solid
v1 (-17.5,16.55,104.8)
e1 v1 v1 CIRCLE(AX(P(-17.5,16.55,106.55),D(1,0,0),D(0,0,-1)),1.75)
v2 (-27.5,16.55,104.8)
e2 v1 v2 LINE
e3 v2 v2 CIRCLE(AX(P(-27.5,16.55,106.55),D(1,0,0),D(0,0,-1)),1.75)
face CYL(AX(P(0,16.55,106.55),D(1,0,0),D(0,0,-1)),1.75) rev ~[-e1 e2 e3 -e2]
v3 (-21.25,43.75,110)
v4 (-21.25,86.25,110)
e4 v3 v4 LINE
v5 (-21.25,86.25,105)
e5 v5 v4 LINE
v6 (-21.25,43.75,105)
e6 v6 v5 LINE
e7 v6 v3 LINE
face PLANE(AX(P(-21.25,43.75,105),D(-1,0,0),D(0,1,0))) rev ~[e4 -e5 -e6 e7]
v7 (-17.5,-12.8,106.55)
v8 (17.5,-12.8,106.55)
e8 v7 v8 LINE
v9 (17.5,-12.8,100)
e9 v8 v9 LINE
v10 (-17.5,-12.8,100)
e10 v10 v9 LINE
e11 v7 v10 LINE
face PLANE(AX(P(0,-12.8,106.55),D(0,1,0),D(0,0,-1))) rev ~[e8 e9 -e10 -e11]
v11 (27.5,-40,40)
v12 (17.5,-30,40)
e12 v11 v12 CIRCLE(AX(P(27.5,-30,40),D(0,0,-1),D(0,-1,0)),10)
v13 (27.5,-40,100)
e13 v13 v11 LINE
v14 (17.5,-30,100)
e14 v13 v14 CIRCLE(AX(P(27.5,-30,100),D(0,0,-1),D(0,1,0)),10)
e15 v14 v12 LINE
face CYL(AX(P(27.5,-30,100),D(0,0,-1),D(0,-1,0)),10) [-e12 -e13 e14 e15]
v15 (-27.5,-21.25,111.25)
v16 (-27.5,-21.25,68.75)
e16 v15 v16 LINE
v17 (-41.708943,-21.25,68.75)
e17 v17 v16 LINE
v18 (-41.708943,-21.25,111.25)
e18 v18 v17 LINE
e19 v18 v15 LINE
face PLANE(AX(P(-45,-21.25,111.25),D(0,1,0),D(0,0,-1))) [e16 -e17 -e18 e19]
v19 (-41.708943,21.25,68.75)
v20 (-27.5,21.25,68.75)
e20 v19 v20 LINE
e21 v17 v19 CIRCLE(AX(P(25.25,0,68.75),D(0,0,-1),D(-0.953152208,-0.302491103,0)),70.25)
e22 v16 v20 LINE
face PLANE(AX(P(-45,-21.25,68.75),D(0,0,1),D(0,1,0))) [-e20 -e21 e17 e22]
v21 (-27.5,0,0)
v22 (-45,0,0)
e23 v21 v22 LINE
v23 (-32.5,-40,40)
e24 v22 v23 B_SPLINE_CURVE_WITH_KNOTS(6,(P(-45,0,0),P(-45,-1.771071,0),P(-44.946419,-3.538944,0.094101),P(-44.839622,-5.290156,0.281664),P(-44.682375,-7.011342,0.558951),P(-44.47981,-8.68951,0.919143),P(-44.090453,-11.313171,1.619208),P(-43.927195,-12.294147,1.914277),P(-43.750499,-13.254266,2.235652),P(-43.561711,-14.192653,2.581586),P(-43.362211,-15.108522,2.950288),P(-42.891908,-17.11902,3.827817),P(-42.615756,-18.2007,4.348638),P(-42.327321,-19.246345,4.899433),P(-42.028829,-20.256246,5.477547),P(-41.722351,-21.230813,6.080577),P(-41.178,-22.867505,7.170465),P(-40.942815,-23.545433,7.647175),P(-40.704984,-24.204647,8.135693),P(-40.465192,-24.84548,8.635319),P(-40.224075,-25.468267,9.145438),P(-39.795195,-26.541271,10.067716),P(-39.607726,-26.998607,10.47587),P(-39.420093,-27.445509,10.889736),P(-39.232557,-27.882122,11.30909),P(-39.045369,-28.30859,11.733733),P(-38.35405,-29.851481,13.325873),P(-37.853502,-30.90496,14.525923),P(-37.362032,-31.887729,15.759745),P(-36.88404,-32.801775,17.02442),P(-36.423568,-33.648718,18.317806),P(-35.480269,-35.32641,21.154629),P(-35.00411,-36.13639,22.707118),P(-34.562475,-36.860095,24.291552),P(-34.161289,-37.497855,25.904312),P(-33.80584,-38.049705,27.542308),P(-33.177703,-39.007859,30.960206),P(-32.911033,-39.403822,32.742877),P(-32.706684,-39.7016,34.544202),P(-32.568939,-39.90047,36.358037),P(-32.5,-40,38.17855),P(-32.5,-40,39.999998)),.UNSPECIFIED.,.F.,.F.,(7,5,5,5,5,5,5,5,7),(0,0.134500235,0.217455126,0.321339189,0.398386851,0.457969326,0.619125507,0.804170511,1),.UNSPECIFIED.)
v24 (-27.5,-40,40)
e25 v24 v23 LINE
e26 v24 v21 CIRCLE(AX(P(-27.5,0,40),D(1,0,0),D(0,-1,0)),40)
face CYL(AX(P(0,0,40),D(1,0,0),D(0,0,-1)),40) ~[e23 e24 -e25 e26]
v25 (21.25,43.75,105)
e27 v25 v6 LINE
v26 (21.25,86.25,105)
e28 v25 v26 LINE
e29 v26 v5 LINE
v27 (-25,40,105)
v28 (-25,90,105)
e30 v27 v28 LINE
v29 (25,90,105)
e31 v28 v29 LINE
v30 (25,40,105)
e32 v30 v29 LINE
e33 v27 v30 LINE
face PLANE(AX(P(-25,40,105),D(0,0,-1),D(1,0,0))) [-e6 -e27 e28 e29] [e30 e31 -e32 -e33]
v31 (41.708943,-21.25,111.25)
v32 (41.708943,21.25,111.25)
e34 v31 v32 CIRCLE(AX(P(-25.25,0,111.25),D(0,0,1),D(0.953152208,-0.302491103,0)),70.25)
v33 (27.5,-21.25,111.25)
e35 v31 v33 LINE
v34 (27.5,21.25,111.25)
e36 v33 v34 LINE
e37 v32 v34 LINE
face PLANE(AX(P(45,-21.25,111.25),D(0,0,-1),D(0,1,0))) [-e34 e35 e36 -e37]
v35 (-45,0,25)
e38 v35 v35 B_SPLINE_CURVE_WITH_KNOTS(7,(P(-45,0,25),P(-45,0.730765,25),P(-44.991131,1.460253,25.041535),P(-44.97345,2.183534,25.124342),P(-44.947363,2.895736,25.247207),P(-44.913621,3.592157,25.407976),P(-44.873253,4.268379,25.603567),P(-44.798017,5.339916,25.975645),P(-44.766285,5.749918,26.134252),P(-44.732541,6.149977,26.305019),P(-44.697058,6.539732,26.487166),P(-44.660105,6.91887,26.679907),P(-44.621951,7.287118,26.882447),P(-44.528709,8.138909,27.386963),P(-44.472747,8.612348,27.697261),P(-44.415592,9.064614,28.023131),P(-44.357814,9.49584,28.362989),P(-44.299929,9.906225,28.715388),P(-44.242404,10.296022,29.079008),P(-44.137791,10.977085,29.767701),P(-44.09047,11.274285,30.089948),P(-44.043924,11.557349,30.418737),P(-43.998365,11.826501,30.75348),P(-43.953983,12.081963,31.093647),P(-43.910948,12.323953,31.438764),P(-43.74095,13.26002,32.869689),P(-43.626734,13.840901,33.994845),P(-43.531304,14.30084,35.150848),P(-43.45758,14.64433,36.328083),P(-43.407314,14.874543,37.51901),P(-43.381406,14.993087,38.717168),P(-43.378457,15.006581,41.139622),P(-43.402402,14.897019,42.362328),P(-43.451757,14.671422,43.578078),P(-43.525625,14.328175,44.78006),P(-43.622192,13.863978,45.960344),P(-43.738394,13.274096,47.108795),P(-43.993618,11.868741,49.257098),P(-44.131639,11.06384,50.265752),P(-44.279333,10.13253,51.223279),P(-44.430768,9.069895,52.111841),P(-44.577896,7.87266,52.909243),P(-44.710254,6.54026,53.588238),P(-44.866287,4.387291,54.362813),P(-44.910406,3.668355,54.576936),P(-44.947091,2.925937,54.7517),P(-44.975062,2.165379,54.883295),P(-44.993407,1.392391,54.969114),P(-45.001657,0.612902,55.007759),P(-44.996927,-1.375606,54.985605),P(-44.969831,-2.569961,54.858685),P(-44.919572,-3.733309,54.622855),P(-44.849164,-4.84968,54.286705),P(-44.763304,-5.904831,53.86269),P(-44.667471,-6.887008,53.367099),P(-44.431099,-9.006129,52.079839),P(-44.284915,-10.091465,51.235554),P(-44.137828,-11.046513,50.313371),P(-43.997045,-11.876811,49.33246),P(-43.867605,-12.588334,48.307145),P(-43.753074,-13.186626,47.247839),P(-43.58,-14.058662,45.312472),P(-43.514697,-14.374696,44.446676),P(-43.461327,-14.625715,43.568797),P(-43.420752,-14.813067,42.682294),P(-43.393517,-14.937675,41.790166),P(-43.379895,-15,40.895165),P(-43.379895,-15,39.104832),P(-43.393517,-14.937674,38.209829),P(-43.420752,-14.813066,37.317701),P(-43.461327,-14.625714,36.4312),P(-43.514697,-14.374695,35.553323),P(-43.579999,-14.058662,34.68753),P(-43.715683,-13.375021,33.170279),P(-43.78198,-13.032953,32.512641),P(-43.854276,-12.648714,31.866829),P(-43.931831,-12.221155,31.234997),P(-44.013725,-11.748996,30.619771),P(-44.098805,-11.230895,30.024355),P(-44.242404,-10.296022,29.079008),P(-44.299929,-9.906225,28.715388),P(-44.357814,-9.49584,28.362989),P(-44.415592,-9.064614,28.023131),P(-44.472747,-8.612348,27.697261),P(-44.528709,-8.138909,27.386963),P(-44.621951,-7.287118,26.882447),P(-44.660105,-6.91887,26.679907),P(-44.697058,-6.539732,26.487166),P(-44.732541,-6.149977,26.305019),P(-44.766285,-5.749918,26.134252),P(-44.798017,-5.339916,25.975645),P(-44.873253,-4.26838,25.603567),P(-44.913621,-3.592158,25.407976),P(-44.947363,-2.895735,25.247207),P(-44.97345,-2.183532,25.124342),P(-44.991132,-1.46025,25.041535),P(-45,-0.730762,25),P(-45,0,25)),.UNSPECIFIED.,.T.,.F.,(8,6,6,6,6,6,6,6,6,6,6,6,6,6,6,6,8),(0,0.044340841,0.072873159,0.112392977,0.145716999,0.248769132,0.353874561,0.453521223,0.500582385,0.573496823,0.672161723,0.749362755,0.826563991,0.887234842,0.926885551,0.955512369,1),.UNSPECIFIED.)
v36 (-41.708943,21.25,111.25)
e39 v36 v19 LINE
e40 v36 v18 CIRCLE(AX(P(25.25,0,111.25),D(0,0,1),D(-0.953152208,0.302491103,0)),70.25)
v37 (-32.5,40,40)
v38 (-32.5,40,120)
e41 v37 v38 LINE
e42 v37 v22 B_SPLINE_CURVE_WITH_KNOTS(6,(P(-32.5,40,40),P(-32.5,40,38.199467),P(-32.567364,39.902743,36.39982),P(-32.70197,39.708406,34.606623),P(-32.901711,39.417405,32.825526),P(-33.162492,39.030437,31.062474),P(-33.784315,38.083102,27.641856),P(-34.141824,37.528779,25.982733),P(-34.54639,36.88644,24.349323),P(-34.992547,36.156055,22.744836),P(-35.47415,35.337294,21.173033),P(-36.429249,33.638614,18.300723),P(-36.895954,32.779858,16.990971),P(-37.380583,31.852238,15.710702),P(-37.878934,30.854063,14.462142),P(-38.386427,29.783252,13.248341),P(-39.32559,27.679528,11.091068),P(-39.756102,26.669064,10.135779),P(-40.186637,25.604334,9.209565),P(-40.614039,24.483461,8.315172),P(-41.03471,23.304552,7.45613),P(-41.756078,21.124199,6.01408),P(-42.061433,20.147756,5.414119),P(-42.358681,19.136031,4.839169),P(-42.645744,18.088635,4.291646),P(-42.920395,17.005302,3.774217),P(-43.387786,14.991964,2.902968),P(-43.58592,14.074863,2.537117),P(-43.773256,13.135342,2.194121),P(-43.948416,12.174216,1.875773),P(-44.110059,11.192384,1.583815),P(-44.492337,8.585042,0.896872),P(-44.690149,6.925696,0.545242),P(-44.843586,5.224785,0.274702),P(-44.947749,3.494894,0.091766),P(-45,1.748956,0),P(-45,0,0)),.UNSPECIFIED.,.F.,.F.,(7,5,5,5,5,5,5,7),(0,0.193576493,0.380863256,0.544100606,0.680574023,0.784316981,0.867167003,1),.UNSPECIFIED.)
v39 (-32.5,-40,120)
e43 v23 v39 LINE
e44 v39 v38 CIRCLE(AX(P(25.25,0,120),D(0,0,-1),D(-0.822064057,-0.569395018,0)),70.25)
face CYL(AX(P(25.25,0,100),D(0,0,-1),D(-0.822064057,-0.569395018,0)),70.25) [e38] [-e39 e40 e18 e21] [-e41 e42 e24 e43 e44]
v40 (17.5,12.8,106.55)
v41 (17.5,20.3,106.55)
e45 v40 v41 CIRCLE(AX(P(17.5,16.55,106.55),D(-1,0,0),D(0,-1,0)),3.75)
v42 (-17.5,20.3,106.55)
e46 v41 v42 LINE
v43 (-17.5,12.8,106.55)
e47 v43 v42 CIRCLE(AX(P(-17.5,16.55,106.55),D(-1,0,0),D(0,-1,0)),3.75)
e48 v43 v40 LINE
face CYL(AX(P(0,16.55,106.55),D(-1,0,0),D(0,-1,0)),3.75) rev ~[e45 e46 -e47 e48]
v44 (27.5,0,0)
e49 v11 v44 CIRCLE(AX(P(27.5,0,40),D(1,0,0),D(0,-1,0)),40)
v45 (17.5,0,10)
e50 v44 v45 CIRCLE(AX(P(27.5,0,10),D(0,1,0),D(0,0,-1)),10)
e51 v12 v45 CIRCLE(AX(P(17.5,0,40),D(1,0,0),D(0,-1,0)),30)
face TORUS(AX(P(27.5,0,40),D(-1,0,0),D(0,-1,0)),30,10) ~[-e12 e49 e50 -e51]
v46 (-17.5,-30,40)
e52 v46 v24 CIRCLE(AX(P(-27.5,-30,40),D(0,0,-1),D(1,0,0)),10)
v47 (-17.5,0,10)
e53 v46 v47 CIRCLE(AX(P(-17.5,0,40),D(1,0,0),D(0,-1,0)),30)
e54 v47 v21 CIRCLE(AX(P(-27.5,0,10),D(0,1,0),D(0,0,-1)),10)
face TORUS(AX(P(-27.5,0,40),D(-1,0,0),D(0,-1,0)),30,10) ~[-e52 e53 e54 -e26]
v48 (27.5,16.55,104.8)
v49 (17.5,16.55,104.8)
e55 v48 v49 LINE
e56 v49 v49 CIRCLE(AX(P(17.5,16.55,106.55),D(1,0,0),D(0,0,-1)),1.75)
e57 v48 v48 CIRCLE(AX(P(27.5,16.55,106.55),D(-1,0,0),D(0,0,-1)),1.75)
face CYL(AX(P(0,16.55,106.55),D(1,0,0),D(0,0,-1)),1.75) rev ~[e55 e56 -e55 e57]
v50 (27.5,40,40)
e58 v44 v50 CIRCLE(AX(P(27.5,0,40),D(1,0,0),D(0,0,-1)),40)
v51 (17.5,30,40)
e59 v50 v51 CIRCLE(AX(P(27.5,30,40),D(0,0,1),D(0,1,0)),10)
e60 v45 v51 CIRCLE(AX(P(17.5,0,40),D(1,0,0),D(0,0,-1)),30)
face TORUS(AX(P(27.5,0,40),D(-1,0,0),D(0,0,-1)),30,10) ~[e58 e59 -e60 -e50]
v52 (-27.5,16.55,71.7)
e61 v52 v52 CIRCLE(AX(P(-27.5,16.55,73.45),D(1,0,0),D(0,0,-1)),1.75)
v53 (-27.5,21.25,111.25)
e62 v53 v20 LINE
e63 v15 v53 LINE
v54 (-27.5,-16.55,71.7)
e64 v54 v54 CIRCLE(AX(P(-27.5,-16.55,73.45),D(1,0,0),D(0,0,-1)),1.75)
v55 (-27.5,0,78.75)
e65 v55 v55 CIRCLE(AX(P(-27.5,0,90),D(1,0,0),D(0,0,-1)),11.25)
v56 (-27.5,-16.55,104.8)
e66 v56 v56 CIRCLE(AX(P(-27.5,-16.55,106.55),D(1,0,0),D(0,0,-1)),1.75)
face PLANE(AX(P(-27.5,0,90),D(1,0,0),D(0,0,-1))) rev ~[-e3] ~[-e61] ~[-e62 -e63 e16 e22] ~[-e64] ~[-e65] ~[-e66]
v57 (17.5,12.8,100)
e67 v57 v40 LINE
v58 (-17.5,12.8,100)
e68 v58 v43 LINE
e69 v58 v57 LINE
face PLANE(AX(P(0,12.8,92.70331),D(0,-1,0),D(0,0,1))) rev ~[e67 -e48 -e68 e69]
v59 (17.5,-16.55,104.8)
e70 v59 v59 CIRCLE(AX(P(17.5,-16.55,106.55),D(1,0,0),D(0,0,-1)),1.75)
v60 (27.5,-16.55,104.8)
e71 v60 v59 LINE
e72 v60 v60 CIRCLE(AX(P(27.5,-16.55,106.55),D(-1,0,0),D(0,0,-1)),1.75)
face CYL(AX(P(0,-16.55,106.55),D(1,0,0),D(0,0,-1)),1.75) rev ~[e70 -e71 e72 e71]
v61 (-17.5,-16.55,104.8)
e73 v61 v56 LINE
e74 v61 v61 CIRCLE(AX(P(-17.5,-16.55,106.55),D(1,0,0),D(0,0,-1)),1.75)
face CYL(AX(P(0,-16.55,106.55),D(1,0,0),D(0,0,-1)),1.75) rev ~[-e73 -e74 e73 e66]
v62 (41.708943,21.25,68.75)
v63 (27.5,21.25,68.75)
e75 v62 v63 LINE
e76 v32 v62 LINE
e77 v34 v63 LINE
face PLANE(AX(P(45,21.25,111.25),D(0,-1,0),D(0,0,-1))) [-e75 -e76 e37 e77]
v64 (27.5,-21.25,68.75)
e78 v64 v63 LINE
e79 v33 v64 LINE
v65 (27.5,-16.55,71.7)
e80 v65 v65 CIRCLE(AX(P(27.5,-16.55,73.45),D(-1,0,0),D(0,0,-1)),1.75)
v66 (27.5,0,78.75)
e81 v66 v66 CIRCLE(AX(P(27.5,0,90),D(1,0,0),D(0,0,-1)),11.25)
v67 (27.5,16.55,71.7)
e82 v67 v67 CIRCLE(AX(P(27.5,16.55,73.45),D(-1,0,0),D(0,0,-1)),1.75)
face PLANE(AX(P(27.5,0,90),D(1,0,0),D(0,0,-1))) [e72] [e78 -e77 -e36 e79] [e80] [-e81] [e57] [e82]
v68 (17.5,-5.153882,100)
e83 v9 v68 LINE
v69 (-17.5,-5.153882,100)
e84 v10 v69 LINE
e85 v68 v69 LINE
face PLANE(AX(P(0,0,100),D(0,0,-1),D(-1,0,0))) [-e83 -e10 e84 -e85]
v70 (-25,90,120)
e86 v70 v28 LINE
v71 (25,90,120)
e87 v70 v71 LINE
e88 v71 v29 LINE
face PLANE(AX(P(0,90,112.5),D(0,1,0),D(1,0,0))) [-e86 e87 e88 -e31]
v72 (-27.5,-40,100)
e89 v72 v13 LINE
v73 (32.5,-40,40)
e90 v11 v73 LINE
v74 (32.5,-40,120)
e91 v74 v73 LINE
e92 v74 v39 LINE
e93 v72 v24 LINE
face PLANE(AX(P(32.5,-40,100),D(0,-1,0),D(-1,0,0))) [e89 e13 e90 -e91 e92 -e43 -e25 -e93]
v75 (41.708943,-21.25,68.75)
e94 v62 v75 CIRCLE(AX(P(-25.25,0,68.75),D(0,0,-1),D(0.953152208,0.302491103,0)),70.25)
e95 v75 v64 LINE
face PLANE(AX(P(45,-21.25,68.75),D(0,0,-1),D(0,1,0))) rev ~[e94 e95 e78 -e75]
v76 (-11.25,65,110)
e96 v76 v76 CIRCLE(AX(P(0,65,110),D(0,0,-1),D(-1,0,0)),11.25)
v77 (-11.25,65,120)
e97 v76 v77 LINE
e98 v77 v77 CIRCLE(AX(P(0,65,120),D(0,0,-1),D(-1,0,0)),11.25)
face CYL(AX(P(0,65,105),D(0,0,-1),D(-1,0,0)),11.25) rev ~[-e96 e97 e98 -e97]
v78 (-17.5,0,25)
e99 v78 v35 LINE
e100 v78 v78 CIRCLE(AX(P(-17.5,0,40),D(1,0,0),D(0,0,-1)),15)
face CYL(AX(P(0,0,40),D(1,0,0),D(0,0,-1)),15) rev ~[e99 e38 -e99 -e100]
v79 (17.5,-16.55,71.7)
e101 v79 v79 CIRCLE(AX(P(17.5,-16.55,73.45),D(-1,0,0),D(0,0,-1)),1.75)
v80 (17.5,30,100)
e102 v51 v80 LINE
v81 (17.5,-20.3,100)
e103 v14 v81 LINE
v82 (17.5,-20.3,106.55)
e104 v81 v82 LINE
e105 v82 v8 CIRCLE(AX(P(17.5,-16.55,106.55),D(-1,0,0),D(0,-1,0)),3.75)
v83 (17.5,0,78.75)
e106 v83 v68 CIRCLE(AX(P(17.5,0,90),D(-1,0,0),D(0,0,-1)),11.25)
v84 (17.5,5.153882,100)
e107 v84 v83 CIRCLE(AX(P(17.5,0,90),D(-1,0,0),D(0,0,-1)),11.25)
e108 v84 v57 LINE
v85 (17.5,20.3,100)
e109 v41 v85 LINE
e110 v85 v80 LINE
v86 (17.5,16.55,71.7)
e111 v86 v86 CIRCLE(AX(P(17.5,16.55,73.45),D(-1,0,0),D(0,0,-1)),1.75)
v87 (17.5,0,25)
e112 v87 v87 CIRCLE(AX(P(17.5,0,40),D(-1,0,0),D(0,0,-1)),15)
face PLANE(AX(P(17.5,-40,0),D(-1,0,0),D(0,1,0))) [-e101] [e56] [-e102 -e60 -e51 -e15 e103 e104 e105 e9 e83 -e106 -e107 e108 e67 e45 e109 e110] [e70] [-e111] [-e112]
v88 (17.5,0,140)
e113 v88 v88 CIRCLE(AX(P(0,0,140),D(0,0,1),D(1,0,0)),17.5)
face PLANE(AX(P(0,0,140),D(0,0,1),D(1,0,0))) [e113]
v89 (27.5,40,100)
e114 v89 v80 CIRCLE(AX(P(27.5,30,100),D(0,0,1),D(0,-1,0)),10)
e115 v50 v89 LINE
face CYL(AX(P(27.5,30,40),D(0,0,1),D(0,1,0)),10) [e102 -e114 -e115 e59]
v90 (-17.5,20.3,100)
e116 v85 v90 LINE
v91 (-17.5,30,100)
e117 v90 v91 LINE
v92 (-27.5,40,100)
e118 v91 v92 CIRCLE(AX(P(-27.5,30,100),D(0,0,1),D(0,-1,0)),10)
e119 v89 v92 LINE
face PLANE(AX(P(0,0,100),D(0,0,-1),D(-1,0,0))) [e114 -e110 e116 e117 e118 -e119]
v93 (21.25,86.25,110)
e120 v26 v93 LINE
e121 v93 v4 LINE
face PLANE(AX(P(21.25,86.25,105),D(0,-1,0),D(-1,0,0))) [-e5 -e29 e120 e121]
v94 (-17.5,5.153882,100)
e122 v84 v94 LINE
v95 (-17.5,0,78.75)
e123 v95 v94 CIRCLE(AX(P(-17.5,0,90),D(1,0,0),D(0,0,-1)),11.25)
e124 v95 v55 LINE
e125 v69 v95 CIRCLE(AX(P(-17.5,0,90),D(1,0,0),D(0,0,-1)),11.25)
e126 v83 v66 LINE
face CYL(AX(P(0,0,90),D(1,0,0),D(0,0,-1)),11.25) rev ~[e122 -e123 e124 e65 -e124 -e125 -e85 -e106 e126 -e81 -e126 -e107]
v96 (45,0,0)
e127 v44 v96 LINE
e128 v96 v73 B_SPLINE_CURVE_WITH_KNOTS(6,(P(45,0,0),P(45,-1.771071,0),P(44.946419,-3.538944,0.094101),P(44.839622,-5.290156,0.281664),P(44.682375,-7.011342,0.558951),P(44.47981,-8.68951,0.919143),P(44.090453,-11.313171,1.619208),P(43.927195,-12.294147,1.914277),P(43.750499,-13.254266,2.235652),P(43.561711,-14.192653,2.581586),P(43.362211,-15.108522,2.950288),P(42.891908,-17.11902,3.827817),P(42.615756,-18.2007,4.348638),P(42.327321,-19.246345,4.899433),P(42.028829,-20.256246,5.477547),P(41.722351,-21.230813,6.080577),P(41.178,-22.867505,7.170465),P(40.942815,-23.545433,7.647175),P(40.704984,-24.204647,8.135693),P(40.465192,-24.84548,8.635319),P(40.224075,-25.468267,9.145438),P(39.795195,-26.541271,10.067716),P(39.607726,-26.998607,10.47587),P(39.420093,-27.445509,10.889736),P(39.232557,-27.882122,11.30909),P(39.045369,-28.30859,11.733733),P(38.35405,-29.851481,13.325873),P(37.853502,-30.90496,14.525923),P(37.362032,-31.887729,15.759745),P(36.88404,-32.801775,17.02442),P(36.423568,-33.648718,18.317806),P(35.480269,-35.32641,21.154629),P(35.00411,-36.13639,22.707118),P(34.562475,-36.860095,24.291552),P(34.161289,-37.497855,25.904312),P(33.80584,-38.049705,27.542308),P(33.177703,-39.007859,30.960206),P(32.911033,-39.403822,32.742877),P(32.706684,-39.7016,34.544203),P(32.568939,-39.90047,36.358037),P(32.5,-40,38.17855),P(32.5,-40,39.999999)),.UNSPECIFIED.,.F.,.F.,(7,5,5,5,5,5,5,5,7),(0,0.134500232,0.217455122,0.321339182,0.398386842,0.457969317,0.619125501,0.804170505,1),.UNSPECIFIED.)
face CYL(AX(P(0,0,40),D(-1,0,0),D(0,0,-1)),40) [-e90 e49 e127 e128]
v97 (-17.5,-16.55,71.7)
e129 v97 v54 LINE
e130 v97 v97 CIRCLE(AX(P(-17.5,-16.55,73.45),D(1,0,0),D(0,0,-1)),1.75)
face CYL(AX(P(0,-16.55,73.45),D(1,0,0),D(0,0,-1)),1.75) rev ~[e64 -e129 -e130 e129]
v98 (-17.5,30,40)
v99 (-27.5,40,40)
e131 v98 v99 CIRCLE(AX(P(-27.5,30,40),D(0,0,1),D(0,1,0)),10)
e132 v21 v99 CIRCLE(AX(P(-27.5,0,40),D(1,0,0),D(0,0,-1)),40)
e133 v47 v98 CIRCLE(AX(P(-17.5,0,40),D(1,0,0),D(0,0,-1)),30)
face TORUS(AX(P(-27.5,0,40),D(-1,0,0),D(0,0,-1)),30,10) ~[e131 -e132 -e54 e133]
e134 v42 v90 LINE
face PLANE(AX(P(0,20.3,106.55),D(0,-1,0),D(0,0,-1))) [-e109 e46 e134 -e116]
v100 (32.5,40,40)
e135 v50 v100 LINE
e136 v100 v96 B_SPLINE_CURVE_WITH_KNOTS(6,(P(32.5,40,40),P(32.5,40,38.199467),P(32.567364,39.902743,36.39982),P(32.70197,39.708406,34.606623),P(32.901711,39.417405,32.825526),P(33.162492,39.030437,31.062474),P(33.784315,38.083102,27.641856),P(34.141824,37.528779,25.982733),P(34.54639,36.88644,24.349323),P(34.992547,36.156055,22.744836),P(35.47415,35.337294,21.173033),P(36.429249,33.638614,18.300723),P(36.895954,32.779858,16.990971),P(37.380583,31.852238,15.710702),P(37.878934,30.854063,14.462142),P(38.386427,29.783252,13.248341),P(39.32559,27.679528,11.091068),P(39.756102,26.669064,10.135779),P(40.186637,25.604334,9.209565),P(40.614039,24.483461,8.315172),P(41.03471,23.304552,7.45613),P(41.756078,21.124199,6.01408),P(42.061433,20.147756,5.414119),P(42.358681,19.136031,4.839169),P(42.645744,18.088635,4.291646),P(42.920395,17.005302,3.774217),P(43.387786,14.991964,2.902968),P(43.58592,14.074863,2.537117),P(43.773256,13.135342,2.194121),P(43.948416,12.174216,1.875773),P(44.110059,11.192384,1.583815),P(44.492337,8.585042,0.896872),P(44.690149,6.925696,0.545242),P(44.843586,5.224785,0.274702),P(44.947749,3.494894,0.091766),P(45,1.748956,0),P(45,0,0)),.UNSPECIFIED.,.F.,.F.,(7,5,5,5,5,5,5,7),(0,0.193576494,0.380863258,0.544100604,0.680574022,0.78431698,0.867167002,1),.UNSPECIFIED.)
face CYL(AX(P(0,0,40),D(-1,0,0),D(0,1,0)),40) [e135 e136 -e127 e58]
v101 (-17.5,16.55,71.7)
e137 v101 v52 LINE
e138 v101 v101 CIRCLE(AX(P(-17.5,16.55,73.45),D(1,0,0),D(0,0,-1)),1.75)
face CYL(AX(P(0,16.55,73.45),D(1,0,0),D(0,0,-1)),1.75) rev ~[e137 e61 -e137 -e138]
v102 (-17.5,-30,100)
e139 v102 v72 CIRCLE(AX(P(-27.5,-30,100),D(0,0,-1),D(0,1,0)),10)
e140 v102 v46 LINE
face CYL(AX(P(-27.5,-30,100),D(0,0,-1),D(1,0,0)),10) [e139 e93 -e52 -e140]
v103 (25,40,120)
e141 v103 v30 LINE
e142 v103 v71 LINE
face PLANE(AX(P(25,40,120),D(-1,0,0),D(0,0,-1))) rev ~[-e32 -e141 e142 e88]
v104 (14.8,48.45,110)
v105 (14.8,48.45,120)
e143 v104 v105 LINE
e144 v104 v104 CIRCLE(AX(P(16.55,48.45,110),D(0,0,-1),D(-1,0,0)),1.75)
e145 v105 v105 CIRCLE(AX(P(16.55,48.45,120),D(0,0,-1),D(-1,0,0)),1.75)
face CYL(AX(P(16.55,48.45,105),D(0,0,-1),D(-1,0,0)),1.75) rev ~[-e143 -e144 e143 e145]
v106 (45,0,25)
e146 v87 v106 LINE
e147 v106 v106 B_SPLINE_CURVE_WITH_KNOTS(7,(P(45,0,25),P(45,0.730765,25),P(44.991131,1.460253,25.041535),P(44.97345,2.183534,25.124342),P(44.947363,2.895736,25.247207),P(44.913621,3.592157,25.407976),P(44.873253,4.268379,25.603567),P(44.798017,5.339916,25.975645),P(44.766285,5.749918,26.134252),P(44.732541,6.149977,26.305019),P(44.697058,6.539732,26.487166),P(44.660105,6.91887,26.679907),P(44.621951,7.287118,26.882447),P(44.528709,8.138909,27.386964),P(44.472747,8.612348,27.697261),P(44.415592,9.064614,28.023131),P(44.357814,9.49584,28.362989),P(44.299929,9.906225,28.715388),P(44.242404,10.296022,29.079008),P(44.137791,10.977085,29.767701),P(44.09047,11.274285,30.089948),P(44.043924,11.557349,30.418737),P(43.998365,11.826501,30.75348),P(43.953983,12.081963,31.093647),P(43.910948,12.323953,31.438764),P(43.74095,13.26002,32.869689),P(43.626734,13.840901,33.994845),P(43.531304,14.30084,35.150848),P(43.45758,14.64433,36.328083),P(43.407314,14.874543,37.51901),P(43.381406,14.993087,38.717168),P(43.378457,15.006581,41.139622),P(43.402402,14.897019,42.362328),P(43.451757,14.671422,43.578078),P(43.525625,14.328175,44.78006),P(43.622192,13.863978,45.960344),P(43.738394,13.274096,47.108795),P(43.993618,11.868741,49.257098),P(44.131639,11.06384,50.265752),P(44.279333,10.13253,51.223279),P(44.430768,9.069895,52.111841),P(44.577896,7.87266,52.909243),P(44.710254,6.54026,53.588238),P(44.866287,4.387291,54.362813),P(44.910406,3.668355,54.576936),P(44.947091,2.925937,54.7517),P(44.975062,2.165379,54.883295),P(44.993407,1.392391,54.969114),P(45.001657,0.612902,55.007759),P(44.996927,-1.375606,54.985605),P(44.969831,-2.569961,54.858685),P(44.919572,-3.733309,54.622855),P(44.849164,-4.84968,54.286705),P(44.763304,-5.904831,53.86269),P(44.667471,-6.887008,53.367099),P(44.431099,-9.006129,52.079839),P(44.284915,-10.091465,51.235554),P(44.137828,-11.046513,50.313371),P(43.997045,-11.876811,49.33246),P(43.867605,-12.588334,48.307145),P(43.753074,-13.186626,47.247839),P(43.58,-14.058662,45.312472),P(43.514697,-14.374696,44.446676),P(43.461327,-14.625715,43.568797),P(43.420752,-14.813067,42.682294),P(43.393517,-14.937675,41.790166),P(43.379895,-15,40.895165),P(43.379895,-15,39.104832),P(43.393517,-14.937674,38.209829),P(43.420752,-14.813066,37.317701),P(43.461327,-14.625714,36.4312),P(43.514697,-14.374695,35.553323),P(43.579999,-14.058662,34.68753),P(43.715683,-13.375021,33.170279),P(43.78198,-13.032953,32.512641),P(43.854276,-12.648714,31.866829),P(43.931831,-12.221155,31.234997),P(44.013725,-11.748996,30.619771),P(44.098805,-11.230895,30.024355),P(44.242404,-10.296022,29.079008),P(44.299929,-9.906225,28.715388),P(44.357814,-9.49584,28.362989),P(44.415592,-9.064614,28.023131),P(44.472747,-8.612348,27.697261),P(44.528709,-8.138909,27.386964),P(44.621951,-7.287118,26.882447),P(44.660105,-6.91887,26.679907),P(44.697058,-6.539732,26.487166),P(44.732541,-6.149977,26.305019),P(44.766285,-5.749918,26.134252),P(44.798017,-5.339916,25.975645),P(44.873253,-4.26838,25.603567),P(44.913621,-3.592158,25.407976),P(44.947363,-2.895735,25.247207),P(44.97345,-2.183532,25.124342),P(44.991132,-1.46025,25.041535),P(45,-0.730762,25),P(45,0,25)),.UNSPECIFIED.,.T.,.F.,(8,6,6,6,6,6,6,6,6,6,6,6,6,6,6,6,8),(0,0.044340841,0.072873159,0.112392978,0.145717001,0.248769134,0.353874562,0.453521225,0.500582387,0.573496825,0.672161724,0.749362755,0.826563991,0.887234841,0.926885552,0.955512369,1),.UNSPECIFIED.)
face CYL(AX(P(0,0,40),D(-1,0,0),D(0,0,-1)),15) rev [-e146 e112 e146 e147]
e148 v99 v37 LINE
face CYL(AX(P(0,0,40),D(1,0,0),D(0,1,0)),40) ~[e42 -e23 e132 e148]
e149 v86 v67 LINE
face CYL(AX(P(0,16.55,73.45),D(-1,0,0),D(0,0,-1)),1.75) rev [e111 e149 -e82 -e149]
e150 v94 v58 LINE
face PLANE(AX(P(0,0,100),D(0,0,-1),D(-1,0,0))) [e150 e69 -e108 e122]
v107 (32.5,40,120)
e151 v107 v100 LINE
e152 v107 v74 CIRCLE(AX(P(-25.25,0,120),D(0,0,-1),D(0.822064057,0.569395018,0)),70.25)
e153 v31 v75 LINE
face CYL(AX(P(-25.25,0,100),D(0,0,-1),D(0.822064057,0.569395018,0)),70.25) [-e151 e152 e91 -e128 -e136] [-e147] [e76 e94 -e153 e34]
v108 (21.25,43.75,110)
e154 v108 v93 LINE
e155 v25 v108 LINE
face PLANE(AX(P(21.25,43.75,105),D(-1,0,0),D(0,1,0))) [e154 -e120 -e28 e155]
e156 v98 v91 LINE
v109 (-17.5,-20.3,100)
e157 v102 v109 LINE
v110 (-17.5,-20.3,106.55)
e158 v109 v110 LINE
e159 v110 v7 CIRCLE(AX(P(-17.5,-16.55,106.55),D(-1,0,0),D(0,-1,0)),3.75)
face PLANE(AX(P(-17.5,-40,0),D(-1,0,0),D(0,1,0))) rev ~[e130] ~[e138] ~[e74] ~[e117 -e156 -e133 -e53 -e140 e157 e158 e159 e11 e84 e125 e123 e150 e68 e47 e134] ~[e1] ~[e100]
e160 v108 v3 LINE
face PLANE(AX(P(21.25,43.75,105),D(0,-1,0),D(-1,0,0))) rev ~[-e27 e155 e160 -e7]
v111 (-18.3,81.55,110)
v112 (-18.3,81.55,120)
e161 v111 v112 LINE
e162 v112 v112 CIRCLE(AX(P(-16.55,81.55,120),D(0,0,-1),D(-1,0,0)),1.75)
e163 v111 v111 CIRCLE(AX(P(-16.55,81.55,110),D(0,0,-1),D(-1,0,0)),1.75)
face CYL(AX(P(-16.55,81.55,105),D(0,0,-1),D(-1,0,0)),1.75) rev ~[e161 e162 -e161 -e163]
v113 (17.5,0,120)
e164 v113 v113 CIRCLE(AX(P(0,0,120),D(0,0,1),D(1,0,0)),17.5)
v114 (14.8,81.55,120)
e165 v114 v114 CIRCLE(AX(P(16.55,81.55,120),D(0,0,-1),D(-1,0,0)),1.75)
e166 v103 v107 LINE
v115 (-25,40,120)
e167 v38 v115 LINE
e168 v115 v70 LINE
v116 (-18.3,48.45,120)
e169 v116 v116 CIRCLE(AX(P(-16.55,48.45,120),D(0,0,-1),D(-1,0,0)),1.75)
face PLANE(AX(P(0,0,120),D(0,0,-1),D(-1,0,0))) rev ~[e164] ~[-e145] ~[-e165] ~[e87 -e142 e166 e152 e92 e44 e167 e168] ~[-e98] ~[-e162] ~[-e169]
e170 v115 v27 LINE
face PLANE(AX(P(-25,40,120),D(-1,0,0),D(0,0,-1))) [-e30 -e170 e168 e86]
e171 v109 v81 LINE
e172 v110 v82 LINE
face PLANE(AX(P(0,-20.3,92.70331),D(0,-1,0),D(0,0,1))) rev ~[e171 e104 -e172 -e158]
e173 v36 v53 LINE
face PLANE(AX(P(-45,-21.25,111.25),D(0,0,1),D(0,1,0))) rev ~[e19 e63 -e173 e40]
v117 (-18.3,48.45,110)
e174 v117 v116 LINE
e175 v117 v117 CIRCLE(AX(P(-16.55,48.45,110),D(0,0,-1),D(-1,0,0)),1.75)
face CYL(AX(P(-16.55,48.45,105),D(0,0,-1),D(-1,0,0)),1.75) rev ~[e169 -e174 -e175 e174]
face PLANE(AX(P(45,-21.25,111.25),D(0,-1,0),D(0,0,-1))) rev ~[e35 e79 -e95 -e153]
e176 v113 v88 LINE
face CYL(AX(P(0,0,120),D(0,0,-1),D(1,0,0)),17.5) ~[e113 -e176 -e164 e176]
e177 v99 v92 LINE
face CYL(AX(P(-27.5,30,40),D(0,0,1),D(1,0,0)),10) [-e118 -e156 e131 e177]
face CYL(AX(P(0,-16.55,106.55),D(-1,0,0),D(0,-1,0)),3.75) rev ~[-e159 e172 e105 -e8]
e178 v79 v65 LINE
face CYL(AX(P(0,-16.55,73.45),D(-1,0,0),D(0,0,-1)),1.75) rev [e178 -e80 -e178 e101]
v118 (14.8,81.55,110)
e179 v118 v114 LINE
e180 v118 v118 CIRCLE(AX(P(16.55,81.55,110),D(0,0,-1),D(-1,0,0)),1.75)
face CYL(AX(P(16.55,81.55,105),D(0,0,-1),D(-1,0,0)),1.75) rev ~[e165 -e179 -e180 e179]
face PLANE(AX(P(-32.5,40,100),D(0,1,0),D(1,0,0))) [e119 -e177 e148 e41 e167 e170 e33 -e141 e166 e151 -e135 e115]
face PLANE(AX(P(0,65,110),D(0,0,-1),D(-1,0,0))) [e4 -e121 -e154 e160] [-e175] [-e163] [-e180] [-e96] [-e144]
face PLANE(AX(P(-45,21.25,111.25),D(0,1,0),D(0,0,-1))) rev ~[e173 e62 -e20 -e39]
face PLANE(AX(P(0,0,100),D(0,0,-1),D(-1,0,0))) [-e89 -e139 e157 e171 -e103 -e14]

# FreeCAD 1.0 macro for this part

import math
import FreeCAD as App
import Part
import Sketcher


def edges_at(feature, points):
    """Names of the edges that pass closest to the given points."""
    edges = feature.Shape.Edges
    near = lambda p: min(range(len(edges)), key=lambda i: edges[i].distToShape(Part.Vertex(*p))[0])
    return sorted({f"Edge{near(p) + 1}" for p in points})

doc = App.newDocument("Part")
body = doc.addObject("PartDesign::Body", "Body")

# Sketch on XY plane
sketch1 = doc.addObject("Sketcher::SketchObject", "Sketch")
body.addObject(sketch1)
sketch1.AttachmentSupport = (doc.XY_Plane, [""])
sketch1.MapMode = "FlatFace"
sketch1.addGeometry(Part.LineSegment(App.Vector(-18, -40, 0), App.Vector(-18, 40, 0)), False)
sketch1.addGeometry(Part.LineSegment(App.Vector(-18, 40, 0), App.Vector(-32, 40, 0)), False)
sketch1.addGeometry(Part.ArcOfCircle(Part.Circle(App.Vector(25, 0, 0), App.Vector(0, 0, 1), 70), math.radians(145), math.radians(215)), False)
sketch1.addGeometry(Part.LineSegment(App.Vector(-32, -40, 0), App.Vector(-18, -40, 0)), False)
sketch1.addConstraint(Sketcher.Constraint("Coincident", 0, 2, 1, 1))
sketch1.addConstraint(Sketcher.Constraint("Coincident", 1, 2, 2, 1))
sketch1.addConstraint(Sketcher.Constraint("Coincident", 2, 2, 3, 1))
sketch1.addConstraint(Sketcher.Constraint("Coincident", 3, 2, 0, 1))
sketch1.addConstraint(Sketcher.Constraint("Vertical", 0))
sketch1.addConstraint(Sketcher.Constraint("Horizontal", 1))
sketch1.addConstraint(Sketcher.Constraint("Horizontal", 3))
sketch1.addConstraint(Sketcher.Constraint("Symmetric", 1, 2, 2, 2, -1))
sketch1.addConstraint(Sketcher.Constraint("DistanceX", 1, 2, 1, 1, 15.0))
sketch1.addConstraint(Sketcher.Constraint("DistanceY", 0, 1, 0, 2, 80.0))
sketch1.addConstraint(Sketcher.Constraint("Radius", 2, 70.25))
sketch1.addConstraint(Sketcher.Constraint("DistanceX", 0, 2, -1, 1, 17.5))
pad1 = doc.addObject("PartDesign::Pad", "Pad")
body.addObject(pad1)
pad1.Profile = sketch1
pad1.Length = 100
body2 = doc.addObject("PartDesign::Body", "Body001")

# Sketch on XY plane
sketch2 = doc.addObject("Sketcher::SketchObject", "Sketch001")
body2.addObject(sketch2)
sketch2.AttachmentSupport = (doc.getObject("XY_Plane001"), [""])
sketch2.MapMode = "FlatFace"
sketch2.addGeometry(Part.LineSegment(App.Vector(18, 40, 0), App.Vector(18, -40, 0)), False)
sketch2.addGeometry(Part.LineSegment(App.Vector(18, -40, 0), App.Vector(32, -40, 0)), False)
sketch2.addGeometry(Part.ArcOfCircle(Part.Circle(App.Vector(-25, 0, 0), App.Vector(0, 0, 1), 70), math.radians(-35), math.radians(35)), False)
sketch2.addGeometry(Part.LineSegment(App.Vector(32, 40, 0), App.Vector(18, 40, 0)), False)
sketch2.addConstraint(Sketcher.Constraint("Coincident", 0, 2, 1, 1))
sketch2.addConstraint(Sketcher.Constraint("Coincident", 1, 2, 2, 1))
sketch2.addConstraint(Sketcher.Constraint("Coincident", 2, 2, 3, 1))
sketch2.addConstraint(Sketcher.Constraint("Coincident", 3, 2, 0, 1))
sketch2.addConstraint(Sketcher.Constraint("Vertical", 0))
sketch2.addConstraint(Sketcher.Constraint("Horizontal", 1))
sketch2.addConstraint(Sketcher.Constraint("Horizontal", 3))
sketch2.addConstraint(Sketcher.Constraint("Symmetric", 1, 2, 2, 2, -1))
sketch2.addConstraint(Sketcher.Constraint("DistanceX", 1, 1, 1, 2, 15.0))
sketch2.addConstraint(Sketcher.Constraint("DistanceY", 0, 2, 0, 1, 80.0))
sketch2.addConstraint(Sketcher.Constraint("Radius", 2, 70.25))
sketch2.addConstraint(Sketcher.Constraint("DistanceX", -1, 1, 0, 2, 17.5))
pad2 = doc.addObject("PartDesign::Pad", "Pad001")
body2.addObject(pad2)
pad2.Profile = sketch2
pad2.Length = 100
body.AllowCompound = True
doc.recompute()

boolean = doc.addObject("PartDesign::Boolean", "Boolean")
body.addObject(boolean)
boolean.Type = "Fuse"
boolean.addObjects([body2])

# Sketch on XY plane
sketch3 = doc.addObject("Sketcher::SketchObject", "Sketch002")
body.addObject(sketch3)
sketch3.AttachmentSupport = (doc.XY_Plane, [""])
sketch3.MapMode = "FlatFace"
sketch3.AttachmentOffset = App.Placement(App.Vector(0, 0, 100), App.Rotation())
sketch3.addGeometry(Part.LineSegment(App.Vector(32, 40, 0), App.Vector(-32, 40, 0)), False)
sketch3.addGeometry(Part.ArcOfCircle(Part.Circle(App.Vector(25, 0, 0), App.Vector(0, 0, 1), 70), math.radians(145), math.radians(215)), False)
sketch3.addGeometry(Part.LineSegment(App.Vector(-32, -40, 0), App.Vector(32, -40, 0)), False)
sketch3.addGeometry(Part.ArcOfCircle(Part.Circle(App.Vector(-25, 0, 0), App.Vector(0, 0, 1), 70), math.radians(-35), math.radians(35)), False)
sketch3.addConstraint(Sketcher.Constraint("Coincident", 0, 2, 1, 1))
sketch3.addConstraint(Sketcher.Constraint("Coincident", 1, 2, 2, 1))
sketch3.addConstraint(Sketcher.Constraint("Coincident", 2, 2, 3, 1))
sketch3.addConstraint(Sketcher.Constraint("Coincident", 3, 2, 0, 1))
sketch3.addConstraint(Sketcher.Constraint("Horizontal", 0))
sketch3.addConstraint(Sketcher.Constraint("Horizontal", 2))
sketch3.addConstraint(Sketcher.Constraint("Equal", 1, 3))
sketch3.addConstraint(Sketcher.Constraint("Symmetric", 1, 3, 3, 3, -1, 1))
sketch3.addConstraint(Sketcher.Constraint("Symmetric", 0, 2, 1, 2, -1))
sketch3.addConstraint(Sketcher.Constraint("DistanceX", 0, 2, 0, 1, 65.0))
sketch3.addConstraint(Sketcher.Constraint("Radius", 1, 70.25))
sketch3.addConstraint(Sketcher.Constraint("DistanceY", -1, 1, 0, 2, 40.0))
pad3 = doc.addObject("PartDesign::Pad", "Pad002")
body.addObject(pad3)
pad3.Profile = sketch3
pad3.Length = 20

# Sketch on YZ plane
sketch4 = doc.addObject("Sketcher::SketchObject", "Sketch003")
body.addObject(sketch4)
sketch4.AttachmentSupport = (doc.YZ_Plane, [""])
sketch4.MapMode = "FlatFace"
sketch4.addGeometry(Part.ArcOfCircle(Part.Circle(App.Vector(0, 40, 0), App.Vector(0, 0, 1), 40), math.radians(-90), math.radians(0)), False)
sketch4.addGeometry(Part.LineSegment(App.Vector(0, 0, 0), App.Vector(40, 0, 0)), False)
sketch4.addGeometry(Part.LineSegment(App.Vector(40, 0, 0), App.Vector(40, 40, 0)), False)
sketch4.addGeometry(Part.LineSegment(App.Vector(-40, 0, 0), App.Vector(0, 0, 0)), False)
sketch4.addGeometry(Part.ArcOfCircle(Part.Circle(App.Vector(0, 40, 0), App.Vector(0, 0, 1), 40), math.radians(-180), math.radians(-90)), False)
sketch4.addGeometry(Part.LineSegment(App.Vector(-40, 40, 0), App.Vector(-40, 0, 0)), False)
sketch4.addGeometry(Part.Circle(App.Vector(0, 40, 0), App.Vector(0, 0, 1), 15), False)
sketch4.addGeometry(Part.Circle(App.Vector(0, 90, 0), App.Vector(0, 0, 1), 11.2), False)
sketch4.addGeometry(Part.Circle(App.Vector(-16.6, 73.5, 0), App.Vector(0, 0, 1), 1.8), False)
sketch4.addGeometry(Part.Circle(App.Vector(16.6, 73.5, 0), App.Vector(0, 0, 1), 1.8), False)
sketch4.addGeometry(Part.Circle(App.Vector(16.6, 106.5, 0), App.Vector(0, 0, 1), 1.8), False)
sketch4.addGeometry(Part.Circle(App.Vector(-16.6, 106.5, 0), App.Vector(0, 0, 1), 1.8), False)
sketch4.addConstraint(Sketcher.Constraint("Tangent", 0, 1, 1, 1))
sketch4.addConstraint(Sketcher.Constraint("Coincident", 1, 2, 2, 1))
sketch4.addConstraint(Sketcher.Constraint("Tangent", 2, 2, 0, 2))
sketch4.addConstraint(Sketcher.Constraint("Tangent", 3, 2, 4, 2))
sketch4.addConstraint(Sketcher.Constraint("Tangent", 4, 1, 5, 1))
sketch4.addConstraint(Sketcher.Constraint("Coincident", 5, 2, 3, 1))
sketch4.addConstraint(Sketcher.Constraint("Horizontal", 1))
sketch4.addConstraint(Sketcher.Constraint("Vertical", 2))
sketch4.addConstraint(Sketcher.Constraint("Horizontal", 3))
sketch4.addConstraint(Sketcher.Constraint("Vertical", 5))
sketch4.addConstraint(Sketcher.Constraint("Coincident", 0, 1, -1, 1))
sketch4.addConstraint(Sketcher.Constraint("Coincident", 3, 2, -1, 1))
sketch4.addConstraint(Sketcher.Constraint("Coincident", 6, 3, 0, 3))
sketch4.addConstraint(Sketcher.Constraint("Equal", 0, 4))
sketch4.addConstraint(Sketcher.Constraint("Equal", 8, 9))
sketch4.addConstraint(Sketcher.Constraint("Equal", 9, 10))
sketch4.addConstraint(Sketcher.Constraint("Equal", 10, 11))
sketch4.addConstraint(Sketcher.Constraint("Symmetric", 8, 3, 9, 3, -2))
sketch4.addConstraint(Sketcher.Constraint("Symmetric", 10, 3, 11, 3, -2))
sketch4.addConstraint(Sketcher.Constraint("PointOnObject", 7, 3, -2))
sketch4.addConstraint(Sketcher.Constraint("Vertical", 9, 3, 10, 3))
sketch4.addConstraint(Sketcher.Constraint("Diameter", 6, 30.0))
sketch4.addConstraint(Sketcher.Constraint("Radius", 0, 40.0))
sketch4.addConstraint(Sketcher.Constraint("Diameter", 7, 22.5))
sketch4.addConstraint(Sketcher.Constraint("Diameter", 8, 3.5))
sketch4.addConstraint(Sketcher.Constraint("DistanceY", -1, 1, 7, 3, 90.0))
sketch4.addConstraint(Sketcher.Constraint("DistanceX", 8, 3, 9, 3, 33.1))
sketch4.addConstraint(Sketcher.Constraint("DistanceY", 9, 3, 10, 3, 33.1))
sketch4.addConstraint(Sketcher.Constraint("DistanceY", -1, 1, 8, 3, 73.45))
pocket1 = doc.addObject("PartDesign::Pocket", "Pocket")
body.addObject(pocket1)
pocket1.Profile = sketch4
pocket1.Type = "ThroughAll"
pocket1.Midplane = True

# Sketch on YZ plane
sketch5 = doc.addObject("Sketcher::SketchObject", "Sketch004")
body.addObject(sketch5)
sketch5.AttachmentSupport = (doc.YZ_Plane, [""])
sketch5.MapMode = "FlatFace"
sketch5.AttachmentOffset = App.Placement(App.Vector(0, 0, 45), App.Rotation())
sketch5.addGeometry(Part.LineSegment(App.Vector(21, 111, 0), App.Vector(-21, 111, 0)), False)
sketch5.addGeometry(Part.LineSegment(App.Vector(-21, 111, 0), App.Vector(-21, 69, 0)), False)
sketch5.addGeometry(Part.LineSegment(App.Vector(-21, 69, 0), App.Vector(21, 69, 0)), False)
sketch5.addGeometry(Part.LineSegment(App.Vector(21, 69, 0), App.Vector(21, 111, 0)), False)
sketch5.addConstraint(Sketcher.Constraint("Coincident", 0, 2, 1, 1))
sketch5.addConstraint(Sketcher.Constraint("Coincident", 1, 2, 2, 1))
sketch5.addConstraint(Sketcher.Constraint("Coincident", 2, 2, 3, 1))
sketch5.addConstraint(Sketcher.Constraint("Coincident", 3, 2, 0, 1))
sketch5.addConstraint(Sketcher.Constraint("Horizontal", 0))
sketch5.addConstraint(Sketcher.Constraint("Vertical", 1))
sketch5.addConstraint(Sketcher.Constraint("Horizontal", 2))
sketch5.addConstraint(Sketcher.Constraint("Vertical", 3))
sketch5.addConstraint(Sketcher.Constraint("Equal", 2, 1))
sketch5.addConstraint(Sketcher.Constraint("DistanceX", 0, 2, 0, 1, 42.5))
sketch5.addConstraint(Sketcher.Constraint("DistanceX", 0, 2, -1, 1, 21.25))
sketch5.addConstraint(Sketcher.Constraint("DistanceY", -1, 1, 0, 2, 111.25))
pocket2 = doc.addObject("PartDesign::Pocket", "Pocket001")
body.addObject(pocket2)
pocket2.Profile = sketch5
pocket2.Length = 17.5

# Sketch on YZ plane
sketch6 = doc.addObject("Sketcher::SketchObject", "Sketch005")
body.addObject(sketch6)
sketch6.AttachmentSupport = (doc.YZ_Plane, [""])
sketch6.MapMode = "FlatFace"
sketch6.AttachmentOffset = App.Placement(App.Vector(0, 0, -45), App.Rotation())
sketch6.addGeometry(Part.LineSegment(App.Vector(21, 111, 0), App.Vector(-21, 111, 0)), False)
sketch6.addGeometry(Part.LineSegment(App.Vector(-21, 111, 0), App.Vector(-21, 69, 0)), False)
sketch6.addGeometry(Part.LineSegment(App.Vector(-21, 69, 0), App.Vector(21, 69, 0)), False)
sketch6.addGeometry(Part.LineSegment(App.Vector(21, 69, 0), App.Vector(21, 111, 0)), False)
sketch6.addConstraint(Sketcher.Constraint("Coincident", 0, 2, 1, 1))
sketch6.addConstraint(Sketcher.Constraint("Coincident", 1, 2, 2, 1))
sketch6.addConstraint(Sketcher.Constraint("Coincident", 2, 2, 3, 1))
sketch6.addConstraint(Sketcher.Constraint("Coincident", 3, 2, 0, 1))
sketch6.addConstraint(Sketcher.Constraint("Horizontal", 0))
sketch6.addConstraint(Sketcher.Constraint("Vertical", 1))
sketch6.addConstraint(Sketcher.Constraint("Horizontal", 2))
sketch6.addConstraint(Sketcher.Constraint("Vertical", 3))
sketch6.addConstraint(Sketcher.Constraint("Equal", 2, 1))
sketch6.addConstraint(Sketcher.Constraint("DistanceX", 0, 2, 0, 1, 42.5))
sketch6.addConstraint(Sketcher.Constraint("DistanceX", 0, 2, -1, 1, 21.25))
sketch6.addConstraint(Sketcher.Constraint("DistanceY", -1, 1, 0, 2, 111.25))
pocket3 = doc.addObject("PartDesign::Pocket", "Pocket002")
body.addObject(pocket3)
pocket3.Profile = sketch6
pocket3.Length = 17.5
pocket3.Reversed = True

# Sketch on XZ plane
sketch7 = doc.addObject("Sketcher::SketchObject", "Sketch006")
body.addObject(sketch7)
sketch7.AttachmentSupport = (doc.XZ_Plane, [""])
sketch7.MapMode = "FlatFace"
sketch7.AttachmentOffset = App.Placement(App.Vector(0, 0, -40), App.Rotation())
sketch7.addGeometry(Part.LineSegment(App.Vector(-25, 105, 0), App.Vector(-25, 120, 0)), False)
sketch7.addGeometry(Part.LineSegment(App.Vector(-25, 120, 0), App.Vector(25, 120, 0)), False)
sketch7.addGeometry(Part.LineSegment(App.Vector(25, 120, 0), App.Vector(25, 105, 0)), False)
sketch7.addGeometry(Part.LineSegment(App.Vector(25, 105, 0), App.Vector(-25, 105, 0)), False)
sketch7.addConstraint(Sketcher.Constraint("Coincident", 0, 2, 1, 1))
sketch7.addConstraint(Sketcher.Constraint("Coincident", 1, 2, 2, 1))
sketch7.addConstraint(Sketcher.Constraint("Coincident", 2, 2, 3, 1))
sketch7.addConstraint(Sketcher.Constraint("Coincident", 3, 2, 0, 1))
sketch7.addConstraint(Sketcher.Constraint("Vertical", 0))
sketch7.addConstraint(Sketcher.Constraint("Horizontal", 1))
sketch7.addConstraint(Sketcher.Constraint("Vertical", 2))
sketch7.addConstraint(Sketcher.Constraint("Horizontal", 3))
sketch7.addConstraint(Sketcher.Constraint("DistanceX", 1, 1, 1, 2, 50.0))
sketch7.addConstraint(Sketcher.Constraint("DistanceY", 0, 1, 0, 2, 15.0))
sketch7.addConstraint(Sketcher.Constraint("DistanceX", 0, 2, -1, 1, 25.0))
sketch7.addConstraint(Sketcher.Constraint("DistanceY", -1, 1, 0, 2, 120.0))
pad4 = doc.addObject("PartDesign::Pad", "Pad003")
body.addObject(pad4)
pad4.Profile = sketch7
pad4.Length = 50
pad4.Reversed = True

# Sketch on XY plane
sketch8 = doc.addObject("Sketcher::SketchObject", "Sketch007")
body.addObject(sketch8)
sketch8.AttachmentSupport = (doc.XY_Plane, [""])
sketch8.MapMode = "FlatFace"
sketch8.AttachmentOffset = App.Placement(App.Vector(0, 0, 105), App.Rotation())
sketch8.addGeometry(Part.Circle(App.Vector(0, 65, 0), App.Vector(0, 0, 1), 11.2), False)
sketch8.addGeometry(Part.Circle(App.Vector(-16.6, 81.5, 0), App.Vector(0, 0, 1), 1.8), False)
sketch8.addGeometry(Part.Circle(App.Vector(16.6, 81.5, 0), App.Vector(0, 0, 1), 1.8), False)
sketch8.addGeometry(Part.Circle(App.Vector(16.6, 48.5, 0), App.Vector(0, 0, 1), 1.8), False)
sketch8.addGeometry(Part.Circle(App.Vector(-16.6, 48.5, 0), App.Vector(0, 0, 1), 1.8), False)
sketch8.addConstraint(Sketcher.Constraint("Equal", 1, 2))
sketch8.addConstraint(Sketcher.Constraint("Equal", 2, 3))
sketch8.addConstraint(Sketcher.Constraint("Equal", 3, 4))
sketch8.addConstraint(Sketcher.Constraint("Symmetric", 1, 3, 2, 3, -2))
sketch8.addConstraint(Sketcher.Constraint("Symmetric", 3, 3, 4, 3, -2))
sketch8.addConstraint(Sketcher.Constraint("PointOnObject", 0, 3, -2))
sketch8.addConstraint(Sketcher.Constraint("Vertical", 2, 3, 3, 3))
sketch8.addConstraint(Sketcher.Constraint("Diameter", 0, 22.5))
sketch8.addConstraint(Sketcher.Constraint("Diameter", 1, 3.5))
sketch8.addConstraint(Sketcher.Constraint("DistanceY", -1, 1, 0, 3, 65.0))
sketch8.addConstraint(Sketcher.Constraint("DistanceX", 1, 3, 2, 3, 33.1))
sketch8.addConstraint(Sketcher.Constraint("DistanceY", 3, 3, 2, 3, 33.1))
sketch8.addConstraint(Sketcher.Constraint("DistanceY", -1, 1, 1, 3, 81.55))
pocket4 = doc.addObject("PartDesign::Pocket", "Pocket003")
body.addObject(pocket4)
pocket4.Profile = sketch8
pocket4.Type = "ThroughAll"
pocket4.Midplane = True

# Sketch on XY plane
sketch9 = doc.addObject("Sketcher::SketchObject", "Sketch008")
body.addObject(sketch9)
sketch9.AttachmentSupport = (doc.XY_Plane, [""])
sketch9.MapMode = "FlatFace"
sketch9.AttachmentOffset = App.Placement(App.Vector(0, 0, 105), App.Rotation())
sketch9.addGeometry(Part.LineSegment(App.Vector(21, 86, 0), App.Vector(21, 44, 0)), False)
sketch9.addGeometry(Part.LineSegment(App.Vector(21, 44, 0), App.Vector(-21, 44, 0)), False)
sketch9.addGeometry(Part.LineSegment(App.Vector(-21, 44, 0), App.Vector(-21, 86, 0)), False)
sketch9.addGeometry(Part.LineSegment(App.Vector(-21, 86, 0), App.Vector(21, 86, 0)), False)
sketch9.addConstraint(Sketcher.Constraint("Coincident", 0, 2, 1, 1))
sketch9.addConstraint(Sketcher.Constraint("Coincident", 1, 2, 2, 1))
sketch9.addConstraint(Sketcher.Constraint("Coincident", 2, 2, 3, 1))
sketch9.addConstraint(Sketcher.Constraint("Coincident", 3, 2, 0, 1))
sketch9.addConstraint(Sketcher.Constraint("Vertical", 0))
sketch9.addConstraint(Sketcher.Constraint("Horizontal", 1))
sketch9.addConstraint(Sketcher.Constraint("Vertical", 2))
sketch9.addConstraint(Sketcher.Constraint("Horizontal", 3))
sketch9.addConstraint(Sketcher.Constraint("Equal", 3, 0))
sketch9.addConstraint(Sketcher.Constraint("DistanceX", 1, 2, 1, 1, 42.5))
sketch9.addConstraint(Sketcher.Constraint("DistanceX", -1, 1, 0, 2, 21.25))
sketch9.addConstraint(Sketcher.Constraint("DistanceY", -1, 1, 0, 2, 43.75))
pocket5 = doc.addObject("PartDesign::Pocket", "Pocket004")
body.addObject(pocket5)
pocket5.Profile = sketch9
pocket5.Length = 5
pocket5.Reversed = True

# Sketch on XY plane
sketch10 = doc.addObject("Sketcher::SketchObject", "Sketch009")
body.addObject(sketch10)
sketch10.AttachmentSupport = (doc.XY_Plane, [""])
sketch10.MapMode = "FlatFace"
sketch10.AttachmentOffset = App.Placement(App.Vector(0, 0, 120), App.Rotation())
sketch10.addGeometry(Part.Circle(App.Vector(0, 0, 0), App.Vector(0, 0, 1), 18), False)
sketch10.addConstraint(Sketcher.Constraint("Coincident", 0, 3, -1, 1))
sketch10.addConstraint(Sketcher.Constraint("Diameter", 0, 35.0))
pad5 = doc.addObject("PartDesign::Pad", "Pad004")
body.addObject(pad5)
pad5.Profile = sketch10
pad5.Length = 20
doc.recompute()

fillet = doc.addObject("PartDesign::Fillet", "Fillet")
body.addObject(fillet)
fillet.Base = (pad5, edges_at(pad5, [
    (17.5, 40, 70),
    (17.5, -40, 70),
    (-17.5, -28.284, 11.716),
    (17.5, -28.284, 11.716),
    (-17.5, 40, 70),
    (-17.5, -40, 70),
]))
fillet.Radius = 10

# Sketch on YZ plane
sketch11 = doc.addObject("Sketcher::SketchObject", "Sketch010")
body.addObject(sketch11)
sketch11.AttachmentSupport = (doc.YZ_Plane, [""])
sketch11.MapMode = "FlatFace"
sketch11.addGeometry(Part.LineSegment(App.Vector(20.3, 92.7, 0), App.Vector(20.3, 106.5, 0)), False)
sketch11.addGeometry(Part.ArcOfCircle(Part.Circle(App.Vector(16.6, 106.5, 0), App.Vector(0, 0, 1), 3.8), math.radians(0), math.radians(180)), False)
sketch11.addGeometry(Part.LineSegment(App.Vector(12.8, 106.5, 0), App.Vector(12.8, 92.7, 0)), False)
sketch11.addGeometry(Part.LineSegment(App.Vector(12.8, 92.7, 0), App.Vector(20.3, 92.7, 0)), False)
sketch11.addGeometry(Part.LineSegment(App.Vector(-12.8, 92.7, 0), App.Vector(-12.8, 106.5, 0)), False)
sketch11.addGeometry(Part.ArcOfCircle(Part.Circle(App.Vector(-16.6, 106.5, 0), App.Vector(0, 0, 1), 3.8), math.radians(0), math.radians(180)), False)
sketch11.addGeometry(Part.LineSegment(App.Vector(-20.3, 106.5, 0), App.Vector(-20.3, 92.7, 0)), False)
sketch11.addGeometry(Part.LineSegment(App.Vector(-20.3, 92.7, 0), App.Vector(-12.8, 92.7, 0)), False)
sketch11.addConstraint(Sketcher.Constraint("Tangent", 0, 2, 1, 1))
sketch11.addConstraint(Sketcher.Constraint("Tangent", 1, 2, 2, 1))
sketch11.addConstraint(Sketcher.Constraint("Coincident", 2, 2, 3, 1))
sketch11.addConstraint(Sketcher.Constraint("Coincident", 3, 2, 0, 1))
sketch11.addConstraint(Sketcher.Constraint("Tangent", 4, 2, 5, 1))
sketch11.addConstraint(Sketcher.Constraint("Tangent", 5, 2, 6, 1))
sketch11.addConstraint(Sketcher.Constraint("Coincident", 6, 2, 7, 1))
sketch11.addConstraint(Sketcher.Constraint("Coincident", 7, 2, 4, 1))
sketch11.addConstraint(Sketcher.Constraint("Vertical", 0))
sketch11.addConstraint(Sketcher.Constraint("Vertical", 2))
sketch11.addConstraint(Sketcher.Constraint("Horizontal", 3))
sketch11.addConstraint(Sketcher.Constraint("Vertical", 4))
sketch11.addConstraint(Sketcher.Constraint("Vertical", 6))
sketch11.addConstraint(Sketcher.Constraint("Horizontal", 7))
sketch11.addConstraint(Sketcher.Constraint("Equal", 1, 5))
sketch11.addConstraint(Sketcher.Constraint("Symmetric", 1, 3, 5, 3, -2))
sketch11.addConstraint(Sketcher.Constraint("Horizontal", 3, 2, 6, 2))
sketch11.addConstraint(Sketcher.Constraint("Radius", 1, 3.75))
sketch11.addConstraint(Sketcher.Constraint("DistanceX", -1, 1, 0, 2, 20.3))
sketch11.addConstraint(Sketcher.Constraint("DistanceY", -1, 1, 1, 3, 106.55))
sketch11.addConstraint(Sketcher.Constraint("DistanceY", 0, 1, 0, 2, 13.84669))
pocket6 = doc.addObject("PartDesign::Pocket", "Pocket005")
body.addObject(pocket6)
pocket6.Profile = sketch11
pocket6.Type = "TwoLengths"
pocket6.Length = 17.5
pocket6.Length2 = 17.5
pocket6.Reversed = True

doc.recompute()
